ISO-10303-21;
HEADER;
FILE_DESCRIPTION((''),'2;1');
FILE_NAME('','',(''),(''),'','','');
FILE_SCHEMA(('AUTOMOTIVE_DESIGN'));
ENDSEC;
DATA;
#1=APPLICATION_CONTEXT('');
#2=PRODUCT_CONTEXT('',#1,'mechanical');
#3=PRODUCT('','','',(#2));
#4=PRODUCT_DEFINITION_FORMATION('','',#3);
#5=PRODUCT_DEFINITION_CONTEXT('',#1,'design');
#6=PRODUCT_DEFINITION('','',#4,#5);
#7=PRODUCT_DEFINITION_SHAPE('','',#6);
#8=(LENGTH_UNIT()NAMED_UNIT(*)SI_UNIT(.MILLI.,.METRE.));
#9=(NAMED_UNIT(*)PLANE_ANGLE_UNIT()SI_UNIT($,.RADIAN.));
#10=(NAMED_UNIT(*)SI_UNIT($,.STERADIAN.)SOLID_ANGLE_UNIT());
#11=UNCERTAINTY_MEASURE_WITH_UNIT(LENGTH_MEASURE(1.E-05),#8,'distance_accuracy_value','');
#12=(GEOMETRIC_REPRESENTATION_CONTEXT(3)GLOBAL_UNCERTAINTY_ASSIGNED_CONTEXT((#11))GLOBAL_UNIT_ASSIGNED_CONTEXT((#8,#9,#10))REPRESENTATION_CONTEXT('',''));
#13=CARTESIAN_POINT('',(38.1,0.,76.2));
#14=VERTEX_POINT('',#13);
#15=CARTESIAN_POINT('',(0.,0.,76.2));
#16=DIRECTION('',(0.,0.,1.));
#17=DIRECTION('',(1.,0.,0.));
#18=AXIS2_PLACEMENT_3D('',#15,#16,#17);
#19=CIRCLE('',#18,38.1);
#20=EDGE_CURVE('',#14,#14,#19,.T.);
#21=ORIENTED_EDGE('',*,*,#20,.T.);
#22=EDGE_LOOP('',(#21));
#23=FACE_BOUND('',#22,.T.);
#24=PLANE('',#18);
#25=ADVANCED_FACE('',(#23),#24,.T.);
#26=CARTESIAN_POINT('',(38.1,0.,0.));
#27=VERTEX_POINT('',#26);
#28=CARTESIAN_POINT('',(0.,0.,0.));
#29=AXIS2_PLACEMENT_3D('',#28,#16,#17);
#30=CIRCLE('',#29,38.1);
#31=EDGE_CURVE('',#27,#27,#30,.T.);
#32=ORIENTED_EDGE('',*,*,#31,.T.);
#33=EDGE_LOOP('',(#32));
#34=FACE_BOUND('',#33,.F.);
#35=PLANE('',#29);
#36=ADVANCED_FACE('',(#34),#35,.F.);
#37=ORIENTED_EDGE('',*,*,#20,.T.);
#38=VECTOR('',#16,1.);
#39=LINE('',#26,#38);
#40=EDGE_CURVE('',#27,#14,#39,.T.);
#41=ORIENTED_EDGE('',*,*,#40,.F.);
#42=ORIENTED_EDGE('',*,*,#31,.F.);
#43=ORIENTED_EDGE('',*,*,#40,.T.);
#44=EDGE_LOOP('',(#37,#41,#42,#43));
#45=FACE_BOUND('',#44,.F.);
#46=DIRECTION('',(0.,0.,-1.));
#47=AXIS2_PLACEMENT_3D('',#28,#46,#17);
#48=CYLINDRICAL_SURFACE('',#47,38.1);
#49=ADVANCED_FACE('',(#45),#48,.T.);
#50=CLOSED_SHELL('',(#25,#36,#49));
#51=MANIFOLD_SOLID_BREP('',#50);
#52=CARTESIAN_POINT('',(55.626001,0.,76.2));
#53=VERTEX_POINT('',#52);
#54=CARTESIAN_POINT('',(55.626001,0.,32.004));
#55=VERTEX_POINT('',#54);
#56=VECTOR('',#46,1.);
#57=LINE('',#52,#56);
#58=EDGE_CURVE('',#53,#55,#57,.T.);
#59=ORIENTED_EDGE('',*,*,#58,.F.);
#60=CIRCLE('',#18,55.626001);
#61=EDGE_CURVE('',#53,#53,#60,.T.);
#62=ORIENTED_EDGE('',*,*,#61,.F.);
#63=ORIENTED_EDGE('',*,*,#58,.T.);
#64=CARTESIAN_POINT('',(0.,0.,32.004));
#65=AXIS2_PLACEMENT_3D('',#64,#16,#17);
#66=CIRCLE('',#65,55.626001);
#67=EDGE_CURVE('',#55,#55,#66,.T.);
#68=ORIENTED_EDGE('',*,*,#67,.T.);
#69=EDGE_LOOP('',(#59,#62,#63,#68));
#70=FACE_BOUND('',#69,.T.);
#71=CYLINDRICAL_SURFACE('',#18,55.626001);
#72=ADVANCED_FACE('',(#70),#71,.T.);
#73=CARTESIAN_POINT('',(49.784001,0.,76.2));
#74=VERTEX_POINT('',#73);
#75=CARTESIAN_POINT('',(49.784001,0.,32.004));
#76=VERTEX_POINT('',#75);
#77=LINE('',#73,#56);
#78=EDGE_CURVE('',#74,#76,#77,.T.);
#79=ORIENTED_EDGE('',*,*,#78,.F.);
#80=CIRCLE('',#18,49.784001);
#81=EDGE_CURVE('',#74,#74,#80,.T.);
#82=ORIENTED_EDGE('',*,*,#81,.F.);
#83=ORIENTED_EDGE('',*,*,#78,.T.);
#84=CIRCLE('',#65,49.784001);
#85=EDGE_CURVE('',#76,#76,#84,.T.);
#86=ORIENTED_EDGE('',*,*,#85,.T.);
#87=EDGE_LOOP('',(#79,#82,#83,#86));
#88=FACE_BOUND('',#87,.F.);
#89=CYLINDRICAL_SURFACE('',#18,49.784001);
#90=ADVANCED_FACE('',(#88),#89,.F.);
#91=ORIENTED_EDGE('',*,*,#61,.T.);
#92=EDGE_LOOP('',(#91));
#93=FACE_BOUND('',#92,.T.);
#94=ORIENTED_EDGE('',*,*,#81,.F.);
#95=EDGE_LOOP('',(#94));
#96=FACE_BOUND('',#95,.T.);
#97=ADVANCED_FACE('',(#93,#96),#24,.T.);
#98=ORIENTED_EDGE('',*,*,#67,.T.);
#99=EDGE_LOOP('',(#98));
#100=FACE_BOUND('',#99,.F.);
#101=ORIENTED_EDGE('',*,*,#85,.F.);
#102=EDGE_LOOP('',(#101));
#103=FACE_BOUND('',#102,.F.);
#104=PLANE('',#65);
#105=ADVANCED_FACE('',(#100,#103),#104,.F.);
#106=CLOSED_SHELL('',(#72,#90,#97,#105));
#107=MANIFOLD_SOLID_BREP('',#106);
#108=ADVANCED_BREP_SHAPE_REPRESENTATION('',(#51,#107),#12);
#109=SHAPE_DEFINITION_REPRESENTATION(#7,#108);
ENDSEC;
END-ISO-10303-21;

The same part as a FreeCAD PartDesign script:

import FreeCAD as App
import Part
import Sketcher

V = App.Vector
Q = App.Units.Quantity

doc = App.newDocument("Part")
body = doc.addObject("PartDesign::Body", "Body")

# Sketch on XY plane
sketch1 = body.newObject("Sketcher::SketchObject", "Sketch")
sketch1.AttachmentSupport = (doc.getObject("XY_Plane"), [""])
sketch1.MapMode = "FlatFace"
sketch1.addGeometry(Part.Circle(V(0, 0, 0), V(0, 0, 1), 38), False)
sketch1.addConstraint(Sketcher.Constraint("Coincident", 0, 3, -1, 1))
sketch1.addConstraint(Sketcher.Constraint("Diameter", 0, Q("3 in")))
pad1 = body.newObject("PartDesign::Pad", "Pad")
pad1.Profile = sketch1
pad1.Length = Q("3 in")
body2 = doc.addObject("PartDesign::Body", "Body001")

# Sketch on XY plane
sketch2 = body2.newObject("Sketcher::SketchObject", "Sketch001")
sketch2.AttachmentSupport = (doc.getObject("XY_Plane001"), [""])
sketch2.MapMode = "FlatFace"
sketch2.AttachmentOffset = App.Placement(V(0, 0, 3 * 25.4), App.Rotation())
sketch2.addGeometry(Part.Circle(V(0, 0, 0), V(0, 0, 1), 56), False)
sketch2.addGeometry(Part.Circle(V(0, 0, 0), V(0, 0, 1), 50), False)
sketch2.addConstraint(Sketcher.Constraint("Coincident", 0, 3, -1, 1))
sketch2.addConstraint(Sketcher.Constraint("Coincident", 1, 3, -1, 1))
sketch2.addConstraint(Sketcher.Constraint("Diameter", 0, Q("4.3800001 in")))
sketch2.addConstraint(Sketcher.Constraint("Diameter", 1, Q("3.9200001 in")))
pad2 = body2.newObject("PartDesign::Pad", "Pad001")
pad2.Profile = sketch2
pad2.Length = Q("1.74 in")
pad2.Reversed = True

doc.recompute()
